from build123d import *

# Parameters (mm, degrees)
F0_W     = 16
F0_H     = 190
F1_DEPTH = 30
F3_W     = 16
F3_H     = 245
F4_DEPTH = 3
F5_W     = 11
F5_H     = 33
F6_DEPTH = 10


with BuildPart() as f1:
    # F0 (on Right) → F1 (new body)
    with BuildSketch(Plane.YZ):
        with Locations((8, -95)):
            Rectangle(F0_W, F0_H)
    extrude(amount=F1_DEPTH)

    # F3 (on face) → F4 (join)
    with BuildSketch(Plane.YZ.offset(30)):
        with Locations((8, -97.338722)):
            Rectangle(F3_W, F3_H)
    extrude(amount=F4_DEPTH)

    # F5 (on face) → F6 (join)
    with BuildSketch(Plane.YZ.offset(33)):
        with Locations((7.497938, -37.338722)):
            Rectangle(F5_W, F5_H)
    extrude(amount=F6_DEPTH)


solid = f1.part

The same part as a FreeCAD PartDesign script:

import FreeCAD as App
import Part
import Sketcher
Q = App.Units.Quantity


def add_polygon(sketch, points):
    """Adds a closed chain of lines whose ends are joined by coincident constraints."""
    first, n = sketch.GeometryCount, len(points)
    for a, b in zip(points, points[1:] + points[:1]):
        sketch.addGeometry(Part.LineSegment(App.Vector(*a, 0), App.Vector(*b, 0)), False)
    for i in range(n):
        sketch.addConstraint(Sketcher.Constraint("Coincident", first + i, 2, first + (i + 1) % n, 1))

doc = App.newDocument("Part")
body = doc.addObject("PartDesign::Body", "Body")

# Sketch on YZ plane
sketch1 = body.newObject("Sketcher::SketchObject", "Sketch")
sketch1.AttachmentSupport = (doc.getObject("YZ_Plane"), [""])
sketch1.MapMode = "FlatFace"
add_polygon(sketch1, [(0, 0), (0, -190), (16, -190), (16, 0)])  # lines 0-3
sketch1.addConstraint([
    Sketcher.Constraint("Vertical", 0),
    Sketcher.Constraint("Horizontal", 1),
    Sketcher.Constraint("Vertical", 2),
    Sketcher.Constraint("Horizontal", 3),
    Sketcher.Constraint("Coincident", 3, 2, -1, 1),
    Sketcher.Constraint("DistanceX", 1, 1, 1, 2, Q("16 mm")),
    Sketcher.Constraint("DistanceY", 0, 2, 0, 1, Q("190 mm")),
])
pad1 = body.newObject("PartDesign::Pad", "Pad")
pad1.Profile = sketch1
pad1.Length = 30

# Sketch on YZ plane
sketch2 = body.newObject("Sketcher::SketchObject", "Sketch001")
sketch2.AttachmentSupport = (doc.getObject("YZ_Plane"), [""])
sketch2.MapMode = "FlatFace"
sketch2.AttachmentOffset = App.Placement(App.Vector(0, 0, 30), App.Rotation())
add_polygon(sketch2, [(0, 25.161278), (0, -219.838722), (16, -219.838722), (16, 25.161278)])  # lines 0-3
sketch2.addConstraint([
    Sketcher.Constraint("Vertical", 0),
    Sketcher.Constraint("Horizontal", 1),
    Sketcher.Constraint("Vertical", 2),
    Sketcher.Constraint("Horizontal", 3),
    Sketcher.Constraint("PointOnObject", 0, 2, -2),
    Sketcher.Constraint("DistanceX", 1, 1, 1, 2, Q("16 mm")),
    Sketcher.Constraint("DistanceY", 0, 2, 0, 1, Q("245 mm")),
    Sketcher.Constraint("DistanceY", 0, 2, -1, 1, Q("219.838722 mm")),
])
pad2 = body.newObject("PartDesign::Pad", "Pad001")
pad2.Profile = sketch2
pad2.Length = 3

# Sketch on YZ plane
sketch3 = body.newObject("Sketcher::SketchObject", "Sketch002")
sketch3.AttachmentSupport = (doc.getObject("YZ_Plane"), [""])
sketch3.MapMode = "FlatFace"
sketch3.AttachmentOffset = App.Placement(App.Vector(0, 0, 33), App.Rotation())
add_polygon(sketch3, [(1.997938, -20.838722), (1.997938, -53.838722), (12.997938, -53.838722), (12.997938, -20.838722)])  # lines 0-3
sketch3.addConstraint([
    Sketcher.Constraint("Vertical", 0),
    Sketcher.Constraint("Horizontal", 1),
    Sketcher.Constraint("Vertical", 2),
    Sketcher.Constraint("Horizontal", 3),
    Sketcher.Constraint("DistanceX", 1, 1, 1, 2, Q("11 mm")),
    Sketcher.Constraint("DistanceY", 0, 2, 0, 1, Q("33 mm")),
    Sketcher.Constraint("DistanceY", 0, 2, -1, 1, Q("53.838722 mm")),
    Sketcher.Constraint("DistanceX", -1, 1, 0, 2, Q("1.997938 mm")),
])
pad3 = body.newObject("PartDesign::Pad", "Pad002")
pad3.Profile = sketch3
pad3.Length = 10

doc.recompute()
